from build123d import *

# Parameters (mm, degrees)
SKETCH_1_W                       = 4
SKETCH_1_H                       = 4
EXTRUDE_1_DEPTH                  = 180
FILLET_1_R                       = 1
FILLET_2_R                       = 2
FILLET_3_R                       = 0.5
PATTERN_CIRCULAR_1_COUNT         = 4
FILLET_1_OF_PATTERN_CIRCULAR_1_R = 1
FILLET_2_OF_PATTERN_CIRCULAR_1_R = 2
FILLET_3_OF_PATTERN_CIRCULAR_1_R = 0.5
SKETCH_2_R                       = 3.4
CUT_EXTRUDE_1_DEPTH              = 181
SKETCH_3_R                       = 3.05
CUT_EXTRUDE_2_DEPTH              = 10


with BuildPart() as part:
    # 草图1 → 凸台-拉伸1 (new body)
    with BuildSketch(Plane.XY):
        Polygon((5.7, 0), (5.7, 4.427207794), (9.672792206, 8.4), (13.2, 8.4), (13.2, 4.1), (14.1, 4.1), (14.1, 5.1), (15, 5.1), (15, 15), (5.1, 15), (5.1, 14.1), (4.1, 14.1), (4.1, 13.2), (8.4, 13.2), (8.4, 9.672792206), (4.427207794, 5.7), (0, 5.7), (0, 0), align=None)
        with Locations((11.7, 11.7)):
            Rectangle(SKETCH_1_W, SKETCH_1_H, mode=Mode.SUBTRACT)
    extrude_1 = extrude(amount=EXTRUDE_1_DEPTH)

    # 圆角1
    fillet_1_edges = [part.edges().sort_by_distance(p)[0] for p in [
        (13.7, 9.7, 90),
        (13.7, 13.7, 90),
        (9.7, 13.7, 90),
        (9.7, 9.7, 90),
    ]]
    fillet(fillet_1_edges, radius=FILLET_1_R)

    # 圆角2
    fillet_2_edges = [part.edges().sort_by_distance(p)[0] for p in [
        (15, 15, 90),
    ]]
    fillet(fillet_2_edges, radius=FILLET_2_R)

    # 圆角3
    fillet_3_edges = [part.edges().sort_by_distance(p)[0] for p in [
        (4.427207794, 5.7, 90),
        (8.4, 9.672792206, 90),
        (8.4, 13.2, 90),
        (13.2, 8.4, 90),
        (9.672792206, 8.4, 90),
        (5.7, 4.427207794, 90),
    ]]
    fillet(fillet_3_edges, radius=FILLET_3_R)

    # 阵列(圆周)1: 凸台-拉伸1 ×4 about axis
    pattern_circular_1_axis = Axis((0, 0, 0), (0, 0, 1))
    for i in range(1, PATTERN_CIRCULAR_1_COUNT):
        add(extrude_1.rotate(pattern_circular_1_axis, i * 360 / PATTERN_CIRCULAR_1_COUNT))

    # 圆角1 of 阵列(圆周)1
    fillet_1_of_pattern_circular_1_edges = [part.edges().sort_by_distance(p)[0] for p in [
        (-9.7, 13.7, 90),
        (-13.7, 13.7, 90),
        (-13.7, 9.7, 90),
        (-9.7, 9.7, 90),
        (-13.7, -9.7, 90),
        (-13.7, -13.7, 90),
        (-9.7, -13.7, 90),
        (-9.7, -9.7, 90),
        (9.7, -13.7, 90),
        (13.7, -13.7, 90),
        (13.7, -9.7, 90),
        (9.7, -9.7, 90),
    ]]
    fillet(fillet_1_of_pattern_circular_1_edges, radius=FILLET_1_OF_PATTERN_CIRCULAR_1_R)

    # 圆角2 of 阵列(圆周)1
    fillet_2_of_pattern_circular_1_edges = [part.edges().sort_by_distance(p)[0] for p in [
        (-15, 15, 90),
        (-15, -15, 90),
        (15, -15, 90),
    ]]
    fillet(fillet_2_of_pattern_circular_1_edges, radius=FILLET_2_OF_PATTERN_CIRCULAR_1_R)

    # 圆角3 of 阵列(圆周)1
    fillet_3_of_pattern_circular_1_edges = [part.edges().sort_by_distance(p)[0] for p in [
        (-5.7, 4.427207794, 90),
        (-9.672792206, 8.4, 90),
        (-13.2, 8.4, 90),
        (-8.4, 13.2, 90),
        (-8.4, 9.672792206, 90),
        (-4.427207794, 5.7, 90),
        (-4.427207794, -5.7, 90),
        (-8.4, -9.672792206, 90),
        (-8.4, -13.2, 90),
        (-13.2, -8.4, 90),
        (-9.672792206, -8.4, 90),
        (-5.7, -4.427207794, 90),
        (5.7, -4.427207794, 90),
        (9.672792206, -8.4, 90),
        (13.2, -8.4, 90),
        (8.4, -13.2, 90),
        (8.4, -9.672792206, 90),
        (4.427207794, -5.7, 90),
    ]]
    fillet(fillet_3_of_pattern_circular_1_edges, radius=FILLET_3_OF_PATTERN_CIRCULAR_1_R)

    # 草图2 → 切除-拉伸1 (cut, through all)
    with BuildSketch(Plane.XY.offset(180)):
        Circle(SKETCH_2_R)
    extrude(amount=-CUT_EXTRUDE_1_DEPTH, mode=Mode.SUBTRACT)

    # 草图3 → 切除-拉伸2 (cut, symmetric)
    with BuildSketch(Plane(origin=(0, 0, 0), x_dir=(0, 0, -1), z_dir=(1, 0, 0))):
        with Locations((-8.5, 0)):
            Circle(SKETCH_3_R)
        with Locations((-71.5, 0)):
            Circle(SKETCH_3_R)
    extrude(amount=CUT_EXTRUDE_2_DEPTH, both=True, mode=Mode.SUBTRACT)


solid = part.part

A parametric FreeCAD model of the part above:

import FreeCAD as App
import Part
import Sketcher
Q = App.Units.Quantity


def edges_at(feature, points):
    """Names of the edges that pass closest to the given points."""
    edges = feature.Shape.Edges
    near = lambda p: min(range(len(edges)), key=lambda i: edges[i].distToShape(Part.Vertex(*p))[0])
    return sorted({f"Edge{near(p) + 1}" for p in points})


def add_polygon(sketch, points):
    """Adds a closed chain of lines whose ends are joined by coincident constraints."""
    first, n = sketch.GeometryCount, len(points)
    for a, b in zip(points, points[1:] + points[:1]):
        sketch.addGeometry(Part.LineSegment(App.Vector(*a, 0), App.Vector(*b, 0)), False)
    for i in range(n):
        sketch.addConstraint(Sketcher.Constraint("Coincident", first + i, 2, first + (i + 1) % n, 1))

doc = App.newDocument("Part")
body = doc.addObject("PartDesign::Body", "Body")

# Sketch on XY plane
sketch1 = body.newObject("Sketcher::SketchObject", "Sketch")
sketch1.AttachmentSupport = (doc.getObject("XY_Plane"), [""])
sketch1.MapMode = "FlatFace"
add_polygon(sketch1, [(5.7, 0), (5.7, 4.427208), (9.672792, 8.4), (13.2, 8.4), (13.2, 4.1), (14.1, 4.1), (14.1, 5.1), (15, 5.1), (15, 15), (5.1, 15), (5.1, 14.1), (4.1, 14.1), (4.1, 13.2), (8.4, 13.2), (8.4, 9.672792), (4.427208, 5.7), (0, 5.7), (0, 0)])  # lines 0-17
add_polygon(sketch1, [(13.7, 9.7), (9.7, 9.7), (9.7, 13.7), (13.7, 13.7)])  # lines 18-21
sketch1.addConstraint([
    Sketcher.Constraint("Vertical", 0),
    Sketcher.Constraint("Horizontal", 2),
    Sketcher.Constraint("Vertical", 3),
    Sketcher.Constraint("Horizontal", 4),
    Sketcher.Constraint("Vertical", 5),
    Sketcher.Constraint("Horizontal", 6),
    Sketcher.Constraint("Vertical", 7),
    Sketcher.Constraint("Horizontal", 8),
    Sketcher.Constraint("Vertical", 9),
    Sketcher.Constraint("Horizontal", 10),
    Sketcher.Constraint("Vertical", 11),
    Sketcher.Constraint("Horizontal", 12),
    Sketcher.Constraint("Vertical", 13),
    Sketcher.Constraint("Horizontal", 15),
    Sketcher.Constraint("Vertical", 16),
    Sketcher.Constraint("Horizontal", 17),
    Sketcher.Constraint("Horizontal", 18),
    Sketcher.Constraint("Vertical", 19),
    Sketcher.Constraint("Horizontal", 20),
    Sketcher.Constraint("Vertical", 21),
    Sketcher.Constraint("Coincident", 16, 2, -1, 1),
    Sketcher.Constraint("Parallel", 1, 14),
    Sketcher.Constraint("Equal", 4, 6),
    Sketcher.Constraint("Equal", 15, 0),
    Sketcher.Constraint("Equal", 12, 3),
    Sketcher.Constraint("Equal", 10, 5),
    Sketcher.Constraint("Equal", 8, 7),
    Sketcher.Constraint("Equal", 6, 9),
    Sketcher.Constraint("Equal", 9, 11),
    Sketcher.Constraint("Equal", 2, 13),
    Sketcher.Constraint("Equal", 17, 16),
    Sketcher.Constraint("Equal", 20, 19),
    Sketcher.Constraint("DistanceX", 10, 2, 10, 1, Q("1 mm")),
    Sketcher.Constraint("DistanceX", 18, 2, 18, 1, Q("4 mm")),
    Sketcher.Constraint("Angle", 1, Q("45 deg")),
    Sketcher.Constraint("DistanceX", 4, 1, 4, 2, Q("0.9 mm")),
    Sketcher.Constraint("DistanceX", 8, 2, 8, 1, Q("9.9 mm")),
    Sketcher.Constraint("DistanceX", 12, 1, 12, 2, Q("4.3 mm")),
    Sketcher.Constraint("DistanceX", 17, 1, 17, 2, Q("5.7 mm")),
    Sketcher.Constraint("DistanceX", -1, 1, 6, 2, Q("15 mm")),
    Sketcher.Constraint("DistanceX", -1, 1, 18, 2, Q("9.7 mm")),
    Sketcher.Constraint("DistanceY", -1, 1, 18, 2, Q("9.7 mm")),
    Sketcher.Constraint("DistanceX", 2, 1, 2, 2, Q("3.527208 mm")),
])
pad1 = body.newObject("PartDesign::Pad", "Pad")
pad1.Profile = sketch1
pad1.Length = 180
doc.recompute()

fillet = body.newObject("PartDesign::Fillet", "Fillet")
fillet.Base = (pad1, edges_at(pad1, [
    (13.7, 9.7, 90),
    (13.7, 13.7, 90),
    (9.7, 13.7, 90),
    (9.7, 9.7, 90),
]))
fillet.Radius = 1
doc.recompute()

fillet2 = body.newObject("PartDesign::Fillet", "Fillet001")
fillet2.Base = (fillet, edges_at(fillet, [(15, 15, 90)]))
fillet2.Radius = 2
doc.recompute()

fillet3 = body.newObject("PartDesign::Fillet", "Fillet002")
fillet3.Base = (fillet2, edges_at(fillet2, [
    (4.427, 5.7, 90),
    (8.4, 9.673, 90),
    (8.4, 13.2, 90),
    (13.2, 8.4, 90),
    (9.673, 8.4, 90),
    (5.7, 4.427, 90),
]))
fillet3.Radius = 0.5
doc.recompute()

polarpattern = body.newObject("PartDesign::PolarPattern", "PolarPattern")
polarpattern.Originals = [pad1]
polarpattern.Axis = (doc.getObject("Z_Axis"), [""])
polarpattern.Angle = 360
polarpattern.Occurrences = 4
body.Tip = polarpattern
doc.recompute()

fillet4 = body.newObject("PartDesign::Fillet", "Fillet003")
fillet4.Base = (polarpattern, edges_at(polarpattern, [
    (-9.7, 13.7, 90),
    (-13.7, 13.7, 90),
    (-13.7, 9.7, 90),
    (-9.7, 9.7, 90),
    (-13.7, -9.7, 90),
    (-13.7, -13.7, 90),
    (-9.7, -13.7, 90),
    (-9.7, -9.7, 90),
    (9.7, -13.7, 90),
    (13.7, -13.7, 90),
    (13.7, -9.7, 90),
    (9.7, -9.7, 90),
]))
fillet4.Radius = 1
doc.recompute()

fillet5 = body.newObject("PartDesign::Fillet", "Fillet004")
fillet5.Base = (fillet4, edges_at(fillet4, [(-15, 15, 90), (-15, -15, 90), (15, -15, 90)]))
fillet5.Radius = 2
doc.recompute()

fillet6 = body.newObject("PartDesign::Fillet", "Fillet005")
fillet6.Base = (fillet5, edges_at(fillet5, [
    (-5.7, 4.427, 90),
    (-9.673, 8.4, 90),
    (-13.2, 8.4, 90),
    (-8.4, 13.2, 90),
    (-8.4, 9.673, 90),
    (-4.427, 5.7, 90),
    (-4.427, -5.7, 90),
    (-8.4, -9.673, 90),
    (-8.4, -13.2, 90),
    (-13.2, -8.4, 90),
    (-9.673, -8.4, 90),
    (-5.7, -4.427, 90),
    (5.7, -4.427, 90),
    (9.673, -8.4, 90),
    (13.2, -8.4, 90),
    (8.4, -13.2, 90),
    (8.4, -9.673, 90),
    (4.427, -5.7, 90),
]))
fillet6.Radius = 0.5

# Sketch on XY plane
sketch2 = body.newObject("Sketcher::SketchObject", "Sketch001")
sketch2.AttachmentSupport = (doc.getObject("XY_Plane"), [""])
sketch2.MapMode = "FlatFace"
sketch2.AttachmentOffset = App.Placement(App.Vector(0, 0, 180), App.Rotation())
sketch2.addGeometry(Part.Circle(App.Vector(0, 0, 0), App.Vector(0, 0, 1), 3.4), False)
sketch2.addConstraint([
    Sketcher.Constraint("Coincident", 0, 3, -1, 1),
    Sketcher.Constraint("Diameter", 0, Q("6.8 mm")),
])
pocket1 = body.newObject("PartDesign::Pocket", "Pocket")
pocket1.Profile = sketch2
pocket1.Type = "ThroughAll"

# Sketch on YZ plane
sketch3 = body.newObject("Sketcher::SketchObject", "Sketch002")
sketch3.AttachmentSupport = (doc.getObject("YZ_Plane"), [""])
sketch3.MapMode = "FlatFace"
sketch3.addGeometry([
    Part.Circle(App.Vector(0, 8.5, 0), App.Vector(0, 0, 1), 3.05),
    Part.Circle(App.Vector(0, 71.5, 0), App.Vector(0, 0, 1), 3.05),
], False)
sketch3.addConstraint([
    Sketcher.Constraint("Equal", 0, 1),
    Sketcher.Constraint("PointOnObject", 0, 3, -2),
    Sketcher.Constraint("PointOnObject", 1, 3, -2),
    Sketcher.Constraint("Diameter", 0, Q("6.1 mm")),
    Sketcher.Constraint("DistanceY", 0, 3, 1, 3, Q("63 mm")),
    Sketcher.Constraint("DistanceY", -1, 1, 0, 3, Q("8.5 mm")),
])
pocket2 = body.newObject("PartDesign::Pocket", "Pocket001")
pocket2.Profile = sketch3
pocket2.Length = 20
pocket2.Midplane = True

doc.recompute()
